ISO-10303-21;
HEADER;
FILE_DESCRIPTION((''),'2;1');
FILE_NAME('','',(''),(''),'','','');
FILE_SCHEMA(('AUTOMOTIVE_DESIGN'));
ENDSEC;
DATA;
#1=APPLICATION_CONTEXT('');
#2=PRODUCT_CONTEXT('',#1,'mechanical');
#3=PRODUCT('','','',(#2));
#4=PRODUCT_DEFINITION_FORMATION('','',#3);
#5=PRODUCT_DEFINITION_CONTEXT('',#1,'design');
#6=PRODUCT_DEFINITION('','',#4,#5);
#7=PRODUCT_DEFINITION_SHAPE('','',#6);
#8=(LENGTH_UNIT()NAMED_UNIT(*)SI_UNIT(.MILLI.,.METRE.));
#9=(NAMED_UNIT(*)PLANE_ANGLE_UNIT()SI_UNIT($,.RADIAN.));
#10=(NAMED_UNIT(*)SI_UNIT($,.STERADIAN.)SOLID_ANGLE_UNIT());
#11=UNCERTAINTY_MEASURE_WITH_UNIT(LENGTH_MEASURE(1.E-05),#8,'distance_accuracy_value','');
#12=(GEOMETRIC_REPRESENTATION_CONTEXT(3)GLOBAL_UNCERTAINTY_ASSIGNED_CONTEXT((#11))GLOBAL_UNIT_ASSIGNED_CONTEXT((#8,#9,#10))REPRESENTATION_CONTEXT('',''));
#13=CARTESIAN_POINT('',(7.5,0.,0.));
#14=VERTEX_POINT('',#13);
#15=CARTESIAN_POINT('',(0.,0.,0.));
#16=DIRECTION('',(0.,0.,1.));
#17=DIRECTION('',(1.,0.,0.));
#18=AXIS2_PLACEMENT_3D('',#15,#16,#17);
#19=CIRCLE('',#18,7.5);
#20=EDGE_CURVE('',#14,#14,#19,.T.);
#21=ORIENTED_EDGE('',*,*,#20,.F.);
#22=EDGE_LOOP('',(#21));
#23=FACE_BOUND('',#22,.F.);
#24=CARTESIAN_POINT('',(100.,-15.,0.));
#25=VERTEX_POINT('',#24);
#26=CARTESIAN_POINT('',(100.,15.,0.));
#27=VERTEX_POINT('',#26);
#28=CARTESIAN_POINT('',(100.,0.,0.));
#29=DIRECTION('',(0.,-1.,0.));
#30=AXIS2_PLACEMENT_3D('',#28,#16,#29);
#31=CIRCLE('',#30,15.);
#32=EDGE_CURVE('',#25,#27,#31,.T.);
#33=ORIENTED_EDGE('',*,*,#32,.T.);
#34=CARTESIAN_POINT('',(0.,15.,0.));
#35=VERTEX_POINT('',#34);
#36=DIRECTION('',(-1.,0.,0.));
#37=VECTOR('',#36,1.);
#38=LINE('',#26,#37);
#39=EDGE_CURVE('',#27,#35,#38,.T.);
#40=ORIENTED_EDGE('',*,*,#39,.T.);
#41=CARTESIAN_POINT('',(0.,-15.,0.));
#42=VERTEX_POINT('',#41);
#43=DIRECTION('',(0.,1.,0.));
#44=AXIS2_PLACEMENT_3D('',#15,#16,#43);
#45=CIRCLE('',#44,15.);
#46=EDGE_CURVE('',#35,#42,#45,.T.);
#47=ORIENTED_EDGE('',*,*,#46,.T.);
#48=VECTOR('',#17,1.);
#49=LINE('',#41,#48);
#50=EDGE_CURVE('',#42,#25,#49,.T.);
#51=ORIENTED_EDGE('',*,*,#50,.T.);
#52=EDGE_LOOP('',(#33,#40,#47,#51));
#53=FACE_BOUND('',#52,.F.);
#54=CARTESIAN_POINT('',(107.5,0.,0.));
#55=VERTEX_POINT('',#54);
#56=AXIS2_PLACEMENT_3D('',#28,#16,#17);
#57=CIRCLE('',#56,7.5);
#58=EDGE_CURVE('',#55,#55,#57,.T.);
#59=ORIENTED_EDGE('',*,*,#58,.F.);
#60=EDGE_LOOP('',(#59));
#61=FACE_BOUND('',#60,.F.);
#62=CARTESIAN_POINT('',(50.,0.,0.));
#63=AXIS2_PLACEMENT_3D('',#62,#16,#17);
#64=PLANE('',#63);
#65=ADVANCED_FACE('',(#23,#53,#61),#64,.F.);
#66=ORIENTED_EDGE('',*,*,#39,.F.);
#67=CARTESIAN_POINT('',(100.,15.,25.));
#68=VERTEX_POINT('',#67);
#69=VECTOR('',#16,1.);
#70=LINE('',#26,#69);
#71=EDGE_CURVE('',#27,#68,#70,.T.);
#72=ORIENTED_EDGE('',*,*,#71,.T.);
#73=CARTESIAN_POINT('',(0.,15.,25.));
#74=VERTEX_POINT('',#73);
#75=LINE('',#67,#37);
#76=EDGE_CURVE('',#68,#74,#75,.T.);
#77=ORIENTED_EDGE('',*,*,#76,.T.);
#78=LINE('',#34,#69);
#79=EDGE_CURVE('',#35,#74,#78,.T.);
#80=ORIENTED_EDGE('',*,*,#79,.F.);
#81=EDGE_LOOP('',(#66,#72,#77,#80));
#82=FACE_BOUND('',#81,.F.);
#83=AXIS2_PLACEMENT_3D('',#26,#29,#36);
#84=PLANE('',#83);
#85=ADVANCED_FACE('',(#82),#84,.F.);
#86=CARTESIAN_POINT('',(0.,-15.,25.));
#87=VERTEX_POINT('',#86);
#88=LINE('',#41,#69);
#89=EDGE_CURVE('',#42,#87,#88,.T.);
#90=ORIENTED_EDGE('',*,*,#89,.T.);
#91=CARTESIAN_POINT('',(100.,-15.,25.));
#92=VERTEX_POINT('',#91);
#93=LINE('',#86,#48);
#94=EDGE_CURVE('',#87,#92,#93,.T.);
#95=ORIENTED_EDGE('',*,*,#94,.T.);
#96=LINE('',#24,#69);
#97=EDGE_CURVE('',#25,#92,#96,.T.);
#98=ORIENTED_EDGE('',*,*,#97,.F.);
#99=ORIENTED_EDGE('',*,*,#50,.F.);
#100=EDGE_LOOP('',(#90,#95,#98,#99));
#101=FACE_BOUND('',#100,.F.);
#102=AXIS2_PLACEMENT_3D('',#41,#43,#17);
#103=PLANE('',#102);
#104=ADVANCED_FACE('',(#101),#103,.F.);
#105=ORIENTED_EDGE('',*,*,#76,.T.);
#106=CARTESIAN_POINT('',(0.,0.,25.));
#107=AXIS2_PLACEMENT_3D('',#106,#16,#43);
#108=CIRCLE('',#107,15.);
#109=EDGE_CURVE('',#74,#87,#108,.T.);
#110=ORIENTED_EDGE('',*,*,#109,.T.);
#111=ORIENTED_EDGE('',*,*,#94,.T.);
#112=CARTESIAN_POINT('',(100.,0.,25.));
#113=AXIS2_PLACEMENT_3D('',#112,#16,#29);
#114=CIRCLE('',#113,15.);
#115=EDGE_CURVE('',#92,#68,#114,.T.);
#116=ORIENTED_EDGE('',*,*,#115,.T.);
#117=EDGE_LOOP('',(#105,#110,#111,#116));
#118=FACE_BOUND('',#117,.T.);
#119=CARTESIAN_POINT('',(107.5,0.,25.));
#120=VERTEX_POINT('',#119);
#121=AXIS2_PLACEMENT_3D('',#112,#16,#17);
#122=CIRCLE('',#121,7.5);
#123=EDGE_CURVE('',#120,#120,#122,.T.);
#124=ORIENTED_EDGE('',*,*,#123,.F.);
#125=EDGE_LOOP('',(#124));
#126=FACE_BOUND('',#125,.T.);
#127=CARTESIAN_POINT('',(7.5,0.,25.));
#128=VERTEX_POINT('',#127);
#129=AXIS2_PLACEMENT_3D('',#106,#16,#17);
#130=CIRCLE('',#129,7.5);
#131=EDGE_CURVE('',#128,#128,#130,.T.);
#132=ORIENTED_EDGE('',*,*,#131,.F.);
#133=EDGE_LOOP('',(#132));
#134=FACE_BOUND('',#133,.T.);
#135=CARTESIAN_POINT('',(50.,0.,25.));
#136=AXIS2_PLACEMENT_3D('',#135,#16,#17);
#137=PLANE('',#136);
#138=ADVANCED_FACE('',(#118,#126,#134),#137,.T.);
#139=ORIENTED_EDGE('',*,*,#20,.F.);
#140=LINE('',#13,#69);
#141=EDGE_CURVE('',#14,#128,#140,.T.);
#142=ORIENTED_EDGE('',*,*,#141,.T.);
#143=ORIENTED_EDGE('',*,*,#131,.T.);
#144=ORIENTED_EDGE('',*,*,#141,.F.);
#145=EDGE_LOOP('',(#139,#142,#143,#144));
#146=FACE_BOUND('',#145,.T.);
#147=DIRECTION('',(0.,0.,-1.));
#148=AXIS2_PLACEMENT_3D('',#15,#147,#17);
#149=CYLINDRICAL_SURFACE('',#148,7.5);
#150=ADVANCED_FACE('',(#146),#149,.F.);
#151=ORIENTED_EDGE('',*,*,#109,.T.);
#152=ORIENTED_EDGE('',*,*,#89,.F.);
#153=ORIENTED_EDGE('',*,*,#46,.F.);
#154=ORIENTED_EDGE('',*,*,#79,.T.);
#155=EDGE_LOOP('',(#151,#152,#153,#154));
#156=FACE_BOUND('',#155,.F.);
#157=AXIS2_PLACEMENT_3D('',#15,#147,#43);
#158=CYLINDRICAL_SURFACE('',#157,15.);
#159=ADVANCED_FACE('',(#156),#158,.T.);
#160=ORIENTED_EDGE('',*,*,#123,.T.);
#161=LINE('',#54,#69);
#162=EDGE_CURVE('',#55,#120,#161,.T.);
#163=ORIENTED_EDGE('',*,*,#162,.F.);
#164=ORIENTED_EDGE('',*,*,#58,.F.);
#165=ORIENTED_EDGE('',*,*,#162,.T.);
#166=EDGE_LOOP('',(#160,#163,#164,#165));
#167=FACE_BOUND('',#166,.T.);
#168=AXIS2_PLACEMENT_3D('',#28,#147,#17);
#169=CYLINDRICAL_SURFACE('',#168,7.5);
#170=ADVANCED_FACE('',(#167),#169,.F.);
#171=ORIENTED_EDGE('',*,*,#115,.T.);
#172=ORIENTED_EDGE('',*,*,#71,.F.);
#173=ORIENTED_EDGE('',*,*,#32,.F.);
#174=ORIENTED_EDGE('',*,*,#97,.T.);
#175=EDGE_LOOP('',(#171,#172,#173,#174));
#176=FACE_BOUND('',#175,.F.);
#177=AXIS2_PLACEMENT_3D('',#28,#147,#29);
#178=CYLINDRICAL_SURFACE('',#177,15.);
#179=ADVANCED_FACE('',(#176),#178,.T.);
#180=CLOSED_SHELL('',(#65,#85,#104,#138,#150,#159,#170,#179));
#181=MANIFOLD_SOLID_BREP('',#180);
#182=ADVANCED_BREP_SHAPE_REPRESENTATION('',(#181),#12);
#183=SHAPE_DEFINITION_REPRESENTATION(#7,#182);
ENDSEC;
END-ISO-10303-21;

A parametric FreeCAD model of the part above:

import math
import FreeCAD as App
import Part
import Sketcher
Q = App.Units.Quantity

doc = App.newDocument("Part")
body = doc.addObject("PartDesign::Body", "Body")

# Sketch on XY plane
sketch1 = body.newObject("Sketcher::SketchObject", "Sketch")
sketch1.AttachmentSupport = (doc.getObject("XY_Plane"), [""])
sketch1.MapMode = "FlatFace"
sketch1.addGeometry([
    Part.ArcOfCircle(Part.Circle(App.Vector(0, 0, 0), App.Vector(0, 0, 1), 15), math.radians(90), math.radians(270)),  # 0
    Part.LineSegment(App.Vector(0, -15, 0), App.Vector(100, -15, 0)),  # 1
    Part.ArcOfCircle(Part.Circle(App.Vector(100, 0, 0), App.Vector(0, 0, 1), 15), math.radians(-90), math.radians(90)),  # 2
    Part.LineSegment(App.Vector(100, 15, 0), App.Vector(0, 15, 0)),  # 3
    Part.Circle(App.Vector(0, 0, 0), App.Vector(0, 0, 1), 8),  # 4
    Part.Circle(App.Vector(100, 0, 0), App.Vector(0, 0, 1), 8),  # 5
], False)
sketch1.addConstraint([
    Sketcher.Constraint("Tangent", 0, 2, 1, 1),
    Sketcher.Constraint("Tangent", 1, 2, 2, 1),
    Sketcher.Constraint("Tangent", 2, 2, 3, 1),
    Sketcher.Constraint("Tangent", 3, 2, 0, 1),
    Sketcher.Constraint("Horizontal", 1),
    Sketcher.Constraint("Horizontal", 3),
    Sketcher.Constraint("Coincident", 0, 3, -1, 1),
    Sketcher.Constraint("Coincident", 4, 3, -1, 1),
    Sketcher.Constraint("Coincident", 5, 3, 2, 3),
    Sketcher.Constraint("Equal", 4, 5),
    Sketcher.Constraint("Diameter", 4, Q("15 mm")),
    Sketcher.Constraint("Radius", 0, Q("15 mm")),
    Sketcher.Constraint("DistanceX", 1, 1, 1, 2, Q("100 mm")),
])
pad1 = body.newObject("PartDesign::Pad", "Pad")
pad1.Profile = sketch1
pad1.Length = 25

doc.recompute()
